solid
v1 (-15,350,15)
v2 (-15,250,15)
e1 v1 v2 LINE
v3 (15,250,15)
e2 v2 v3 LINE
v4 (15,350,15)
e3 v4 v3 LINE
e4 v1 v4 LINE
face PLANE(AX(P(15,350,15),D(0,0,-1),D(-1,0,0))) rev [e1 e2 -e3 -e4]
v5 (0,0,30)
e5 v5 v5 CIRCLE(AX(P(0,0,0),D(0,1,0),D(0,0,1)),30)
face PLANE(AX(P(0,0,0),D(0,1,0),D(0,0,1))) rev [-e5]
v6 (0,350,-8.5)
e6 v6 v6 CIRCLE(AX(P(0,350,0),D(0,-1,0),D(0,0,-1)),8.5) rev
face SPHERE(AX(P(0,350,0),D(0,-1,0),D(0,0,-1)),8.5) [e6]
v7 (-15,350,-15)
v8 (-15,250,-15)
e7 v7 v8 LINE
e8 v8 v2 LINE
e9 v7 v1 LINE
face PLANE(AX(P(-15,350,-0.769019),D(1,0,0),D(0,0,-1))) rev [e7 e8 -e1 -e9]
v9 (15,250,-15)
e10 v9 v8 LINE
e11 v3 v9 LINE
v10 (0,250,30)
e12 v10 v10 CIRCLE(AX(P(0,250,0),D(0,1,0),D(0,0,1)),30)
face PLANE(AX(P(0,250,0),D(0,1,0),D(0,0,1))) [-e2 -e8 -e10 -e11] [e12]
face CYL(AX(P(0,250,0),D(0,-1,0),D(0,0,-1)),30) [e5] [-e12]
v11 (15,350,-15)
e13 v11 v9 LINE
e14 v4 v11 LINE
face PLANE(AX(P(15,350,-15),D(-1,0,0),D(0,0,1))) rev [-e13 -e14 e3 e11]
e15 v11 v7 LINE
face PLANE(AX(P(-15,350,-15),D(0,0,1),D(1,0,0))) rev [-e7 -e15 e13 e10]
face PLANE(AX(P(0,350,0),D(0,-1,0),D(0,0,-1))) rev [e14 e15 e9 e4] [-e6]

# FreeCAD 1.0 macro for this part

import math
import FreeCAD as App
import Part
import Sketcher


def add_polygon(sketch, points):
    """Adds a closed chain of lines whose ends are joined by coincident constraints."""
    first, n = sketch.GeometryCount, len(points)
    for a, b in zip(points, points[1:] + points[:1]):
        sketch.addGeometry(Part.LineSegment(App.Vector(*a, 0), App.Vector(*b, 0)), False)
    for i in range(n):
        sketch.addConstraint(Sketcher.Constraint("Coincident", first + i, 2, first + (i + 1) % n, 1))

doc = App.newDocument("Part")
body = doc.addObject("PartDesign::Body", "Body")

sketch1 = body.newObject("Sketcher::SketchObject", "Sketch")
sketch1.AttachmentSupport = (doc.getObject("XZ_Plane"), [""])
sketch1.MapMode = "FlatFace"
sketch1.addGeometry(Part.Circle(App.Vector(0, 0, 0), App.Vector(0, 0, 1), 30), False)
sketch1.addConstraint([
    Sketcher.Constraint("Coincident", 0, 3, -1, 1),
    Sketcher.Constraint("Diameter", 0, 60.0),
])
pad1 = body.newObject("PartDesign::Pad", "Pad")
pad1.Profile = sketch1
pad1.Length = 250
pad1.Reversed = True

sketch2 = body.newObject("Sketcher::SketchObject", "Sketch001")
sketch2.AttachmentSupport = (doc.getObject("XZ_Plane"), [""])
sketch2.MapMode = "FlatFace"
sketch2.AttachmentOffset = App.Placement(App.Vector(0, 0, -250), App.Rotation())
add_polygon(sketch2, [(-15, -15), (-15, 15), (15, 15), (15, -15)])
sketch2.addConstraint([
    Sketcher.Constraint("Vertical", 0),
    Sketcher.Constraint("Horizontal", 1),
    Sketcher.Constraint("Vertical", 2),
    Sketcher.Constraint("Horizontal", 3),
    Sketcher.Constraint("Symmetric", 0, 2, 2, 2, -1, 1),
    Sketcher.Constraint("Equal", 3, 0),
    Sketcher.Constraint("DistanceX", 1, 1, 1, 2, 30.0),
])
pad2 = body.newObject("PartDesign::Pad", "Pad001")
pad2.Profile = sketch2
pad2.Length = 100
pad2.Reversed = True

sketch3 = body.newObject("Sketcher::SketchObject", "Sketch002")
sketch3.AttachmentSupport = (doc.getObject("XZ_Plane"), [""])
sketch3.MapMode = "FlatFace"
sketch3.AttachmentOffset = App.Placement(App.Vector(0, 0, -350), App.Rotation())
sketch3.addGeometry([
    Part.LineSegment(App.Vector(0, -8.5, 0), App.Vector(0, 8.5, 0)),
    Part.ArcOfCircle(Part.Circle(App.Vector(0, 0, 0), App.Vector(0, 0, 1), 8.5), math.radians(-90), math.radians(90)),
], False)
sketch3.addConstraint([
    Sketcher.Constraint("Coincident", 0, 1, 1, 1),
    Sketcher.Constraint("Coincident", 1, 2, 0, 2),
    Sketcher.Constraint("Vertical", 0),
    Sketcher.Constraint("Coincident", 1, 3, -1, 1),
    Sketcher.Constraint("PointOnObject", 0, 1, -2),
    Sketcher.Constraint("Radius", 1, 8.5),
])
revolution = body.newObject("PartDesign::Revolution", "Revolution")
revolution.Profile = sketch3
revolution.ReferenceAxis = (sketch3, ["V_Axis"])
revolution.Angle = 360

doc.recompute()
